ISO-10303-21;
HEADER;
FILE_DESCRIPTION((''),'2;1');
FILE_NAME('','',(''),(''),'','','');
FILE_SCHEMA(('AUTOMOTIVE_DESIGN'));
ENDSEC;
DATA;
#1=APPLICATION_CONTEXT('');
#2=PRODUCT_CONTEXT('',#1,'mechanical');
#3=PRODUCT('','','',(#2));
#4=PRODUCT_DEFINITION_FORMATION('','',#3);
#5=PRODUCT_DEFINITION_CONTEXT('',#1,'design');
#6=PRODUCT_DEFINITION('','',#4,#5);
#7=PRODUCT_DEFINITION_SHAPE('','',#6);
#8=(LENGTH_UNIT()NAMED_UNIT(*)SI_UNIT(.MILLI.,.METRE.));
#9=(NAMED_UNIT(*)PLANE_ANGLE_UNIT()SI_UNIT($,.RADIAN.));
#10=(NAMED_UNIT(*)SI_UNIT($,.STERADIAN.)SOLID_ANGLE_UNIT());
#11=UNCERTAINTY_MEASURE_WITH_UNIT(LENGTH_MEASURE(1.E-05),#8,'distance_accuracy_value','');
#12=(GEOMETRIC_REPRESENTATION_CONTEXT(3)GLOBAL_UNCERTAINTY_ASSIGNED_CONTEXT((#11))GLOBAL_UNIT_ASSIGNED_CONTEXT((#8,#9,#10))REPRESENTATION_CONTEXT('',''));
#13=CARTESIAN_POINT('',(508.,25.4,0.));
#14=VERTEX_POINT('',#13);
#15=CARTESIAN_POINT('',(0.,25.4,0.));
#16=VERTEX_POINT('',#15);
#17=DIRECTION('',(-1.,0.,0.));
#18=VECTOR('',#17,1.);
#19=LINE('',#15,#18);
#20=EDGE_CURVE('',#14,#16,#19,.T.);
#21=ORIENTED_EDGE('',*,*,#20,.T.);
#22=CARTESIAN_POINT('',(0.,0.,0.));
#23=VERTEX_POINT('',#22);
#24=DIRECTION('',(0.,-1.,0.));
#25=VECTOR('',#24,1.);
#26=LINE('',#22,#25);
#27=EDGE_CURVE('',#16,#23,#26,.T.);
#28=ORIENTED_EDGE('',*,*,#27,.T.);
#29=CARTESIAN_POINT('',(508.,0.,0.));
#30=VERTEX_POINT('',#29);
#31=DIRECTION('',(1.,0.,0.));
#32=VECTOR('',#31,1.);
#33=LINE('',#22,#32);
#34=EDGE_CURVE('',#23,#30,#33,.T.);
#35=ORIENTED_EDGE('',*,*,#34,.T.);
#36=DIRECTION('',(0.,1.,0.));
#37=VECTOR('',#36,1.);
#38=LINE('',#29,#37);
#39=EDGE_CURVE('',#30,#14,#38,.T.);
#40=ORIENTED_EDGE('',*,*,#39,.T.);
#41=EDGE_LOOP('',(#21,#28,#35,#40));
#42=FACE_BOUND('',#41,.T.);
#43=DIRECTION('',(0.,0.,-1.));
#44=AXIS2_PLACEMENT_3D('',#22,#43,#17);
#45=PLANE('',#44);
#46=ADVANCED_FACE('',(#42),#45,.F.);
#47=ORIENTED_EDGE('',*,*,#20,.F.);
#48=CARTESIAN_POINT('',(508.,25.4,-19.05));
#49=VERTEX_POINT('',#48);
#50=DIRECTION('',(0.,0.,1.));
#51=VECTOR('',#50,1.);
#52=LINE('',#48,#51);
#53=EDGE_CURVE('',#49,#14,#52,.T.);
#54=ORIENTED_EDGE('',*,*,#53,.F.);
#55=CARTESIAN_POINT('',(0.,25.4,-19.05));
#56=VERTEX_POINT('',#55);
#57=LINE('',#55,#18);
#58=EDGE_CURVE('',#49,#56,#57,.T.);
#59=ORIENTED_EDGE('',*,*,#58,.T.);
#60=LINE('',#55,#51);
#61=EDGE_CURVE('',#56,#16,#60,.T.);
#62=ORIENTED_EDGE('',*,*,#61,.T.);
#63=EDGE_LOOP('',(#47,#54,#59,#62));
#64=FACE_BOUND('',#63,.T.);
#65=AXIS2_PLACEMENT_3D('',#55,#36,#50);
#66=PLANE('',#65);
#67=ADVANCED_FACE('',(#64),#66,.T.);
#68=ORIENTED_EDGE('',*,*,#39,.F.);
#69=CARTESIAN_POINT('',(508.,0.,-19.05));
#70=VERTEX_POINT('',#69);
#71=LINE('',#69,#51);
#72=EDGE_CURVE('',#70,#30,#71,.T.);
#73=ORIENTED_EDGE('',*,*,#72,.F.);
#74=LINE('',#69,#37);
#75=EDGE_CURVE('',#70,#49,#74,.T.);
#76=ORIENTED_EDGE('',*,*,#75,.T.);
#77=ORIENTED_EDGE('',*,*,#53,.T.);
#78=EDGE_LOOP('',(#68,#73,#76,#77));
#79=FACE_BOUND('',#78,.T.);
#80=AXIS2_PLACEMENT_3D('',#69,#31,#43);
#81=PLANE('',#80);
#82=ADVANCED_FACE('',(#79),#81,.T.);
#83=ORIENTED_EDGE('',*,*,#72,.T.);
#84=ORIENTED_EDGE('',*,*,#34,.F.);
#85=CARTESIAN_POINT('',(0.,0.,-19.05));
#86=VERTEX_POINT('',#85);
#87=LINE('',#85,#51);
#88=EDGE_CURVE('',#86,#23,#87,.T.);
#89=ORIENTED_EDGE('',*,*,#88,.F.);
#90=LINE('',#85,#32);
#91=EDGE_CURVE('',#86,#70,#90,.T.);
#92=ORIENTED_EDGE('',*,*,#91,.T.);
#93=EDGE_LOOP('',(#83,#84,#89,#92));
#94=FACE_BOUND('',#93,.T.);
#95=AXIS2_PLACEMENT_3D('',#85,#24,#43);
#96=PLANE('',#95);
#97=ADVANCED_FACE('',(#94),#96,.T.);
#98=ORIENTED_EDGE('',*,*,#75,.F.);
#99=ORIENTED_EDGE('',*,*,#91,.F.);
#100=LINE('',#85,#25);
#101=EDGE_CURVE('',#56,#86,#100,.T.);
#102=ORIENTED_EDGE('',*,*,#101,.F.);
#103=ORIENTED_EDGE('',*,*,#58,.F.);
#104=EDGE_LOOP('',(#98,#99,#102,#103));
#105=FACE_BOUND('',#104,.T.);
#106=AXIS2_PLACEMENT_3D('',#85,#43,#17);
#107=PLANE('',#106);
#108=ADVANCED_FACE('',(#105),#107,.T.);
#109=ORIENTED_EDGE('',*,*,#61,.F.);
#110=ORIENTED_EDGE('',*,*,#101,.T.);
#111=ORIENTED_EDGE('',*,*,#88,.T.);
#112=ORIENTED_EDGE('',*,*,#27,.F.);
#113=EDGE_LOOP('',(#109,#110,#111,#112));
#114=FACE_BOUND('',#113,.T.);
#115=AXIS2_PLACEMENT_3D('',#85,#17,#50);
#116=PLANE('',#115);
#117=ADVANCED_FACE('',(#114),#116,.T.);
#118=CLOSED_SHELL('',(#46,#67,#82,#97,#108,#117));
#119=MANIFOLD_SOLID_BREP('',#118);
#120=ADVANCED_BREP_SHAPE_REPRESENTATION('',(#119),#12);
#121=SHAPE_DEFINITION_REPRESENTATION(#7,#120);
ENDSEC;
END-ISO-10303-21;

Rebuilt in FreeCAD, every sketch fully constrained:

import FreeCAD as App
import Part
import Sketcher
from FreeCAD import Vector
Q = App.Units.Quantity


def add_polygon(sketch, points):
    """Adds a closed chain of lines whose ends are joined by coincident constraints."""
    first, n = sketch.GeometryCount, len(points)
    for a, b in zip(points, points[1:] + points[:1]):
        sketch.addGeometry(Part.LineSegment(App.Vector(*a, 0), App.Vector(*b, 0)), False)
    for i in range(n):
        sketch.addConstraint(Sketcher.Constraint("Coincident", first + i, 2, first + (i + 1) % n, 1))

doc = App.newDocument("Part")
body = doc.addObject("PartDesign::Body", "Body")

# Sketch on XY plane
sketch1 = body.newObject("Sketcher::SketchObject", "Sketch")
sketch1.AttachmentSupport = (doc.getObject("XY_Plane"), [""])
sketch1.MapMode = "FlatFace"
add_polygon(sketch1, [(0, 25), (0, 0), (508, 0), (508, 25)])  # lines 0-3
sketch1.addConstraint([
    Sketcher.Constraint("Vertical", 0),
    Sketcher.Constraint("Horizontal", 1),
    Sketcher.Constraint("Vertical", 2),
    Sketcher.Constraint("Horizontal", 3),
    Sketcher.Constraint("Coincident", 0, 2, -1, 1),
    Sketcher.Constraint("DistanceX", 1, 1, 1, 2, Q("20 in")),
    Sketcher.Constraint("DistanceY", 0, 2, 0, 1, Q("1 in")),
])
pad1 = body.newObject("PartDesign::Pad", "Pad")
pad1.Profile = sketch1
pad1.Length = Q("0.75 in")
pad1.Reversed = True

doc.recompute()
